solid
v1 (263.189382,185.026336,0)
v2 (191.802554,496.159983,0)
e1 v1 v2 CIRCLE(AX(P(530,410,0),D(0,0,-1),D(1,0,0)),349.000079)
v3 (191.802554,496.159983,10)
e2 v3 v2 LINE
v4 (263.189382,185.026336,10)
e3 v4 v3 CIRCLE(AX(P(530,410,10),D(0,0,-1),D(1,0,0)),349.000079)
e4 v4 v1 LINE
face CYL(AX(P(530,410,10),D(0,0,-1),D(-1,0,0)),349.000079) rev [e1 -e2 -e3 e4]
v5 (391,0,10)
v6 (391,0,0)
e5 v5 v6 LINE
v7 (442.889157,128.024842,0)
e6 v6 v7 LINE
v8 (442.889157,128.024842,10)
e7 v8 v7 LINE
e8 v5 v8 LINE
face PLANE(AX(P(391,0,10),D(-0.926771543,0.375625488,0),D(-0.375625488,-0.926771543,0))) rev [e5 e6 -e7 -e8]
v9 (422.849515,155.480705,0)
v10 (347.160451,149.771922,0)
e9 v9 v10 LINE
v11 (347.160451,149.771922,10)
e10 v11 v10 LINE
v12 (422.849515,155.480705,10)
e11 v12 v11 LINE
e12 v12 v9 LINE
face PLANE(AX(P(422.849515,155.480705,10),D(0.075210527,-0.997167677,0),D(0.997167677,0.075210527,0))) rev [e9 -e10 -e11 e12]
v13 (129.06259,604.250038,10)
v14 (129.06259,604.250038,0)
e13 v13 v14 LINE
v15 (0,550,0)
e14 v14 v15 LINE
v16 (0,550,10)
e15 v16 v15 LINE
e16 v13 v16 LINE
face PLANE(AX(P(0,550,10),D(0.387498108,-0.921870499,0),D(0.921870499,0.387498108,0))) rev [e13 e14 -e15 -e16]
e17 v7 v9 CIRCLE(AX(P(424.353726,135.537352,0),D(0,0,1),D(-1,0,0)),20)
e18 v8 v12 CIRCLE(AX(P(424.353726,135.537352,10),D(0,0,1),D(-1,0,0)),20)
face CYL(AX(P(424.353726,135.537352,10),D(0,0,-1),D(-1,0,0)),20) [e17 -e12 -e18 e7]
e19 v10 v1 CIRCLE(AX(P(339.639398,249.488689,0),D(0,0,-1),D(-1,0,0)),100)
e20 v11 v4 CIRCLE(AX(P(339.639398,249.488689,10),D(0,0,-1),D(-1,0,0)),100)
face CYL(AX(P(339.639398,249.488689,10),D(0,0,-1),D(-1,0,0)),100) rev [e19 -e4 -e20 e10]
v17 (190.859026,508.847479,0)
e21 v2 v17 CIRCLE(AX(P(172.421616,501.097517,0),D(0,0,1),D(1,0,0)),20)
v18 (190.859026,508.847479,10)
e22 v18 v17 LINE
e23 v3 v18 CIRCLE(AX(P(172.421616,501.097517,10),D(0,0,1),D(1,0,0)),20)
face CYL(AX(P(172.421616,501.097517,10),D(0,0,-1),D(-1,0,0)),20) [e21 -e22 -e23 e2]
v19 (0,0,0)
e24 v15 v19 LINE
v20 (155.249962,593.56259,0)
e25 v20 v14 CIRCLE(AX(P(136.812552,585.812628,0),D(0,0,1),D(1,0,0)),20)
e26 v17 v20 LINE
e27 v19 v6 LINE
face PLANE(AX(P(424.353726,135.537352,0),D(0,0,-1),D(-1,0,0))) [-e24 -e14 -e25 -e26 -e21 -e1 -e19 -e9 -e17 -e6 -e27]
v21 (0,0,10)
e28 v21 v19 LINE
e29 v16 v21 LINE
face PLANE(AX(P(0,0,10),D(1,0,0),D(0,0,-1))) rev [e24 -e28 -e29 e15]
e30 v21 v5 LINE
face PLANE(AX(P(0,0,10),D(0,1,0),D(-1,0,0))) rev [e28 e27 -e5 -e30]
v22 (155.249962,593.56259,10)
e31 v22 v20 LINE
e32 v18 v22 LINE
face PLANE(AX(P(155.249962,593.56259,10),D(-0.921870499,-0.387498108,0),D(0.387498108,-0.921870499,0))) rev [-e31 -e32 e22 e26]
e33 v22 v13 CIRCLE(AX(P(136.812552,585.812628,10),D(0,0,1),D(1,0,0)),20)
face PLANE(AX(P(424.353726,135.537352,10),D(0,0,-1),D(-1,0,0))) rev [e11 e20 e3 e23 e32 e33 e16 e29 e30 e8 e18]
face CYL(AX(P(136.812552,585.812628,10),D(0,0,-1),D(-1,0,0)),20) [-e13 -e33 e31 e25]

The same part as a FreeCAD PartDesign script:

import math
import FreeCAD as App
import Part
import Sketcher

V = App.Vector

doc = App.newDocument("Part")
body = doc.addObject("PartDesign::Body", "Body")

sketch1 = body.newObject("Sketcher::SketchObject", "Sketch")
sketch1.AttachmentSupport = (doc.getObject("XY_Plane"), [""])
sketch1.MapMode = "FlatFace"
sketch1.addGeometry([
    Part.LineSegment(V(0, 550, 0), V(0, 0, 0)),
    Part.LineSegment(V(0, 0, 0), V(391, 0, 0)),
    Part.LineSegment(V(391, 0, 0), V(442.889157, 128.024842, 0)),
    Part.ArcOfCircle(Part.Circle(V(424.353726, 135.537352, 0), V(0, 0, 1), 20), math.radians(-22.062977), math.radians(94.313319)),
    Part.LineSegment(V(422.849515, 155.480705, 0), V(347.160451, 149.771922, 0)),
    Part.ArcOfCircle(Part.Circle(V(339.639398, 249.488689, 0), V(0, 0, 1), 100), math.radians(-139.862545), math.radians(-85.686681)),
    Part.ArcOfCircle(Part.Circle(V(530, 410, 0), V(0, 0, 1), 349.000079), math.radians(165.707233), math.radians(220.137455)),
    Part.ArcOfCircle(Part.Circle(V(172.421616, 501.097517, 0), V(0, 0, 1), 20), math.radians(-14.292767), math.radians(22.798914)),
    Part.LineSegment(V(190.859026, 508.847479, 0), V(155.249962, 593.56259, 0)),
    Part.ArcOfCircle(Part.Circle(V(136.812552, 585.812628, 0), V(0, 0, 1), 20), math.radians(22.798914), math.radians(112.798914)),
    Part.LineSegment(V(129.06259, 604.250038, 0), V(0, 550, 0)),
], False)
sketch1.addConstraint([
    Sketcher.Constraint("Coincident", 0, 2, 1, 1),
    Sketcher.Constraint("Coincident", 1, 2, 2, 1),
    Sketcher.Constraint("Tangent", 2, 2, 3, 1),
    Sketcher.Constraint("Tangent", 3, 2, 4, 1),
    Sketcher.Constraint("Tangent", 4, 2, 5, 2),
    Sketcher.Constraint("Tangent", 5, 1, 6, 2),
    Sketcher.Constraint("Tangent", 6, 1, 7, 1),
    Sketcher.Constraint("Tangent", 7, 2, 8, 1),
    Sketcher.Constraint("Tangent", 8, 2, 9, 1),
    Sketcher.Constraint("Tangent", 9, 2, 10, 1),
    Sketcher.Constraint("Coincident", 10, 2, 0, 1),
    Sketcher.Constraint("Vertical", 0),
    Sketcher.Constraint("Horizontal", 1),
    Sketcher.Constraint("Coincident", 0, 2, -1, 1),
    Sketcher.Constraint("Equal", 3, 7),
    Sketcher.Constraint("Equal", 7, 9),
    Sketcher.Constraint("Perpendicular", 8, 10),
    Sketcher.Constraint("Radius", 3, 20.0),
    Sketcher.Constraint("Radius", 5, 100.0),
    Sketcher.Constraint("DistanceX", 1, 1, 1, 2, 391.0),
    Sketcher.Constraint("DistanceY", 0, 2, 0, 1, 550.0),
    Sketcher.Constraint("DistanceX", -1, 1, 6, 3, 530.0),
    Sketcher.Constraint("DistanceY", -1, 1, 6, 3, 410.0),
    Sketcher.Constraint("Radius", 6, 349.000079),
    Sketcher.Constraint("DistanceX", 9, 3, 6, 1, 54.990002),
    Sketcher.Constraint("DistanceX", -1, 1, 5, 3, 339.639398),
    Sketcher.Constraint("DistanceY", 5, 3, 8, 2, 344.073901),
    Sketcher.Constraint("Distance", 2, 138.14067),
    Sketcher.Constraint("Distance", 4, 75.904049),
])
pad1 = body.newObject("PartDesign::Pad", "Pad")
pad1.Profile = sketch1
pad1.Length = 10

doc.recompute()
